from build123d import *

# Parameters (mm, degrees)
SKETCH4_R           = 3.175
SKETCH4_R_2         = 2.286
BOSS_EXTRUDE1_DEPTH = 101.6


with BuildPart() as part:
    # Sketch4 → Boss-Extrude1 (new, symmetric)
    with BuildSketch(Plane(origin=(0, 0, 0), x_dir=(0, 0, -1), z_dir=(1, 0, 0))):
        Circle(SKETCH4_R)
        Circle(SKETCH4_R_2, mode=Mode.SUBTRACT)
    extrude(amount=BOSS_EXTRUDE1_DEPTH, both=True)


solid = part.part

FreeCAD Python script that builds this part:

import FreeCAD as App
import Part
import Sketcher
from FreeCAD import Vector
Q = App.Units.Quantity

doc = App.newDocument("Part")
body = doc.addObject("PartDesign::Body", "Body")

# Sketch on YZ plane
sketch1 = body.newObject("Sketcher::SketchObject", "Sketch")
sketch1.AttachmentSupport = (doc.getObject("YZ_Plane"), [""])
sketch1.MapMode = "FlatFace"
sketch1.addGeometry(Part.Circle(Vector(0, 0, 0), Vector(0, 0, 1), 3.2), False)
sketch1.addGeometry(Part.Circle(Vector(0, 0, 0), Vector(0, 0, 1), 2.3), False)
sketch1.addConstraint(Sketcher.Constraint("Coincident", 0, 3, -1, 1))
sketch1.addConstraint(Sketcher.Constraint("Coincident", 1, 3, -1, 1))
sketch1.addConstraint(Sketcher.Constraint("Diameter", 0, Q("0.25 in")))
sketch1.addConstraint(Sketcher.Constraint("Diameter", 1, Q("0.18 in")))
pad1 = body.newObject("PartDesign::Pad", "Pad")
pad1.Profile = sketch1
pad1.Length = Q("8 in")
pad1.Midplane = True

doc.recompute()
